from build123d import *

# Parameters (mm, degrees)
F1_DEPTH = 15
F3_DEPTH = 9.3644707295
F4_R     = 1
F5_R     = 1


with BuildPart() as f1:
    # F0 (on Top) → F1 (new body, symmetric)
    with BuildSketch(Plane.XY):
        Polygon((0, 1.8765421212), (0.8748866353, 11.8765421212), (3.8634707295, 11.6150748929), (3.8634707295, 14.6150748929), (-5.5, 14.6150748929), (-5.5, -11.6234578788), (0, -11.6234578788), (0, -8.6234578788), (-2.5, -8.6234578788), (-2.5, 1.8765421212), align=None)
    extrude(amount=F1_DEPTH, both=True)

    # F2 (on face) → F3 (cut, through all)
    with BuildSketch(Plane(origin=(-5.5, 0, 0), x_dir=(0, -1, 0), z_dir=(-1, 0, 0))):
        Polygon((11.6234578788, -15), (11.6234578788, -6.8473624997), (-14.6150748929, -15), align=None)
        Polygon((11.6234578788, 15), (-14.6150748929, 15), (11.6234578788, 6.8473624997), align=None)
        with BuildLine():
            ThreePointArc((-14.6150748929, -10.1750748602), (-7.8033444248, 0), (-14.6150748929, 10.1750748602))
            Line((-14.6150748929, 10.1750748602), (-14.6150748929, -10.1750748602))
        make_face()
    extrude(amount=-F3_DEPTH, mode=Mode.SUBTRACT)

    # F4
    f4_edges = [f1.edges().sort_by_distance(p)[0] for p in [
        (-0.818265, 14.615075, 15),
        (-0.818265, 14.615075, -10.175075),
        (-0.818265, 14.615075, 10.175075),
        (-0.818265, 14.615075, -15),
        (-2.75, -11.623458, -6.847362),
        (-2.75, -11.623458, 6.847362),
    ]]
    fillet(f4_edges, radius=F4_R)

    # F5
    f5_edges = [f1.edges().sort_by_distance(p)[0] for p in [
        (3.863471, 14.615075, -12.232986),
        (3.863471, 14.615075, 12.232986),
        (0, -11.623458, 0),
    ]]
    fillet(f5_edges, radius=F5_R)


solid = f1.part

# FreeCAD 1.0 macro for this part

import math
import FreeCAD as App
import Part
import Sketcher

V = App.Vector
Q = App.Units.Quantity


def edges_at(feature, points):
    """Names of the edges that pass closest to the given points."""
    edges = feature.Shape.Edges
    near = lambda p: min(range(len(edges)), key=lambda i: edges[i].distToShape(Part.Vertex(*p))[0])
    return sorted({f"Edge{near(p) + 1}" for p in points})

doc = App.newDocument("Part")
body = doc.addObject("PartDesign::Body", "Body")

sketch1 = doc.addObject("Sketcher::SketchObject", "Sketch")
body.addObject(sketch1)
sketch1.AttachmentSupport = (doc.XY_Plane, [""])
sketch1.MapMode = "FlatFace"
sketch1.addGeometry(Part.LineSegment(V(0, 1.9, 0), V(0.9, 11.9, 0)), False)
sketch1.addGeometry(Part.LineSegment(V(0.9, 11.9, 0), V(3.9, 11.6, 0)), False)
sketch1.addGeometry(Part.LineSegment(V(3.9, 11.6, 0), V(3.9, 14.6, 0)), False)
sketch1.addGeometry(Part.LineSegment(V(3.9, 14.6, 0), V(-5.5, 14.6, 0)), False)
sketch1.addGeometry(Part.LineSegment(V(-5.5, 14.6, 0), V(-5.5, -11.6, 0)), False)
sketch1.addGeometry(Part.LineSegment(V(-5.5, -11.6, 0), V(0, -11.6, 0)), False)
sketch1.addGeometry(Part.LineSegment(V(0, -11.6, 0), V(0, -8.6, 0)), False)
sketch1.addGeometry(Part.LineSegment(V(0, -8.6, 0), V(-2.5, -8.6, 0)), False)
sketch1.addGeometry(Part.LineSegment(V(-2.5, -8.6, 0), V(-2.5, 1.9, 0)), False)
sketch1.addGeometry(Part.LineSegment(V(-2.5, 1.9, 0), V(0, 1.9, 0)), False)
sketch1.addConstraint(Sketcher.Constraint("Coincident", 0, 2, 1, 1))
sketch1.addConstraint(Sketcher.Constraint("Coincident", 1, 2, 2, 1))
sketch1.addConstraint(Sketcher.Constraint("Coincident", 2, 2, 3, 1))
sketch1.addConstraint(Sketcher.Constraint("Coincident", 3, 2, 4, 1))
sketch1.addConstraint(Sketcher.Constraint("Coincident", 4, 2, 5, 1))
sketch1.addConstraint(Sketcher.Constraint("Coincident", 5, 2, 6, 1))
sketch1.addConstraint(Sketcher.Constraint("Coincident", 6, 2, 7, 1))
sketch1.addConstraint(Sketcher.Constraint("Coincident", 7, 2, 8, 1))
sketch1.addConstraint(Sketcher.Constraint("Coincident", 8, 2, 9, 1))
sketch1.addConstraint(Sketcher.Constraint("Coincident", 9, 2, 0, 1))
sketch1.addConstraint(Sketcher.Constraint("Vertical", 2))
sketch1.addConstraint(Sketcher.Constraint("Horizontal", 3))
sketch1.addConstraint(Sketcher.Constraint("Vertical", 4))
sketch1.addConstraint(Sketcher.Constraint("Horizontal", 5))
sketch1.addConstraint(Sketcher.Constraint("Vertical", 6))
sketch1.addConstraint(Sketcher.Constraint("Horizontal", 7))
sketch1.addConstraint(Sketcher.Constraint("Vertical", 8))
sketch1.addConstraint(Sketcher.Constraint("Horizontal", 9))
sketch1.addConstraint(Sketcher.Constraint("PointOnObject", 5, 2, -2))
sketch1.addConstraint(Sketcher.Constraint("PointOnObject", 9, 2, -2))
sketch1.addConstraint(Sketcher.Constraint("Perpendicular", 0, 1))
sketch1.addConstraint(Sketcher.Constraint("Equal", 2, 6))
sketch1.addConstraint(Sketcher.Constraint("DistanceY", 2, 1, 2, 2, 3.0))
sketch1.addConstraint(Sketcher.Constraint("Angle", 0, Q("85 deg")))
sketch1.addConstraint(Sketcher.Constraint("Distance", 1, 3.0))
sketch1.addConstraint(Sketcher.Constraint("DistanceX", 5, 1, 5, 2, 5.5))
sketch1.addConstraint(Sketcher.Constraint("DistanceX", 7, 2, 7, 1, 2.5))
sketch1.addConstraint(Sketcher.Constraint("DistanceY", 8, 1, 8, 2, 10.5))
sketch1.addConstraint(Sketcher.Constraint("DistanceY", 8, 2, 0, 2, 10.0))
sketch1.addConstraint(Sketcher.Constraint("DistanceY", -1, 1, 0, 2, 11.876542))
pad1 = doc.addObject("PartDesign::Pad", "Pad")
body.addObject(pad1)
pad1.Profile = sketch1
pad1.Length = 30
pad1.Midplane = True

sketch2 = doc.addObject("Sketcher::SketchObject", "Sketch001")
body.addObject(sketch2)
sketch2.AttachmentSupport = (doc.YZ_Plane, [""])
sketch2.MapMode = "FlatFace"
sketch2.AttachmentOffset = App.Placement(V(0, 0, -5.5), App.Rotation())
sketch2.addGeometry(Part.LineSegment(V(-12, -15, 0), V(-12, -7, 0)), False)
sketch2.addGeometry(Part.LineSegment(V(-12, -7, 0), V(15, -15, 0)), False)
sketch2.addGeometry(Part.LineSegment(V(15, -15, 0), V(-12, -15, 0)), False)
sketch2.addGeometry(Part.LineSegment(V(-12, 15, 0), V(15, 15, 0)), False)
sketch2.addGeometry(Part.LineSegment(V(15, 15, 0), V(-12, 7, 0)), False)
sketch2.addGeometry(Part.LineSegment(V(-12, 7, 0), V(-12, 15, 0)), False)
sketch2.addGeometry(Part.ArcOfCircle(Part.Circle(V(19, 0, 0), V(0, 0, 1), 11), math.radians(112), math.radians(248)), False)
sketch2.addGeometry(Part.LineSegment(V(15, 10, 0), V(15, -10, 0)), False)
sketch2.addConstraint(Sketcher.Constraint("Coincident", 0, 2, 1, 1))
sketch2.addConstraint(Sketcher.Constraint("Coincident", 1, 2, 2, 1))
sketch2.addConstraint(Sketcher.Constraint("Coincident", 2, 2, 0, 1))
sketch2.addConstraint(Sketcher.Constraint("Coincident", 3, 2, 4, 1))
sketch2.addConstraint(Sketcher.Constraint("Coincident", 4, 2, 5, 1))
sketch2.addConstraint(Sketcher.Constraint("Coincident", 5, 2, 3, 1))
sketch2.addConstraint(Sketcher.Constraint("Coincident", 6, 1, 7, 1))
sketch2.addConstraint(Sketcher.Constraint("Coincident", 7, 2, 6, 2))
sketch2.addConstraint(Sketcher.Constraint("Vertical", 0))
sketch2.addConstraint(Sketcher.Constraint("Horizontal", 2))
sketch2.addConstraint(Sketcher.Constraint("Horizontal", 3))
sketch2.addConstraint(Sketcher.Constraint("Vertical", 5))
sketch2.addConstraint(Sketcher.Constraint("Vertical", 7))
sketch2.addConstraint(Sketcher.Constraint("Symmetric", 1, 2, 3, 2, -1))
sketch2.addConstraint(Sketcher.Constraint("Symmetric", 0, 2, 4, 2, -1))
sketch2.addConstraint(Sketcher.Constraint("PointOnObject", 6, 3, -1))
sketch2.addConstraint(Sketcher.Constraint("Vertical", 3, 2, 6, 1))
sketch2.addConstraint(Sketcher.Constraint("DistanceY", 1, 2, -1, 1, 15.0))
sketch2.addConstraint(Sketcher.Constraint("Radius", 6, 11.005413))
sketch2.addConstraint(Sketcher.Constraint("DistanceY", 7, 2, 7, 1, 20.35015))
sketch2.addConstraint(Sketcher.Constraint("Distance", 1, 27.475919))
sketch2.addConstraint(Sketcher.Constraint("DistanceX", 2, 2, 2, 1, 26.238533))
sketch2.addConstraint(Sketcher.Constraint("DistanceX", -1, 1, 6, 3, 18.808758))
pocket1 = doc.addObject("PartDesign::Pocket", "Pocket")
body.addObject(pocket1)
pocket1.Profile = sketch2
pocket1.Type = "ThroughAll"
pocket1.Reversed = True
doc.recompute()

fillet = doc.addObject("PartDesign::Fillet", "Fillet")
body.addObject(fillet)
fillet.Base = (pocket1, edges_at(pocket1, [
    (-0.818, 14.615, 15),
    (-0.818, 14.615, -10.175),
    (-0.818, 14.615, 10.175),
    (-0.818, 14.615, -15),
    (-2.75, -11.623, -6.847),
    (-2.75, -11.623, 6.847),
]))
fillet.Radius = 1
doc.recompute()

fillet2 = doc.addObject("PartDesign::Fillet", "Fillet001")
body.addObject(fillet2)
fillet2.Base = (fillet, edges_at(fillet, [(3.863, 14.615, -12.233), (3.863, 14.615, 12.233), (0, -11.623, 0)]))
fillet2.Radius = 1

doc.recompute()
